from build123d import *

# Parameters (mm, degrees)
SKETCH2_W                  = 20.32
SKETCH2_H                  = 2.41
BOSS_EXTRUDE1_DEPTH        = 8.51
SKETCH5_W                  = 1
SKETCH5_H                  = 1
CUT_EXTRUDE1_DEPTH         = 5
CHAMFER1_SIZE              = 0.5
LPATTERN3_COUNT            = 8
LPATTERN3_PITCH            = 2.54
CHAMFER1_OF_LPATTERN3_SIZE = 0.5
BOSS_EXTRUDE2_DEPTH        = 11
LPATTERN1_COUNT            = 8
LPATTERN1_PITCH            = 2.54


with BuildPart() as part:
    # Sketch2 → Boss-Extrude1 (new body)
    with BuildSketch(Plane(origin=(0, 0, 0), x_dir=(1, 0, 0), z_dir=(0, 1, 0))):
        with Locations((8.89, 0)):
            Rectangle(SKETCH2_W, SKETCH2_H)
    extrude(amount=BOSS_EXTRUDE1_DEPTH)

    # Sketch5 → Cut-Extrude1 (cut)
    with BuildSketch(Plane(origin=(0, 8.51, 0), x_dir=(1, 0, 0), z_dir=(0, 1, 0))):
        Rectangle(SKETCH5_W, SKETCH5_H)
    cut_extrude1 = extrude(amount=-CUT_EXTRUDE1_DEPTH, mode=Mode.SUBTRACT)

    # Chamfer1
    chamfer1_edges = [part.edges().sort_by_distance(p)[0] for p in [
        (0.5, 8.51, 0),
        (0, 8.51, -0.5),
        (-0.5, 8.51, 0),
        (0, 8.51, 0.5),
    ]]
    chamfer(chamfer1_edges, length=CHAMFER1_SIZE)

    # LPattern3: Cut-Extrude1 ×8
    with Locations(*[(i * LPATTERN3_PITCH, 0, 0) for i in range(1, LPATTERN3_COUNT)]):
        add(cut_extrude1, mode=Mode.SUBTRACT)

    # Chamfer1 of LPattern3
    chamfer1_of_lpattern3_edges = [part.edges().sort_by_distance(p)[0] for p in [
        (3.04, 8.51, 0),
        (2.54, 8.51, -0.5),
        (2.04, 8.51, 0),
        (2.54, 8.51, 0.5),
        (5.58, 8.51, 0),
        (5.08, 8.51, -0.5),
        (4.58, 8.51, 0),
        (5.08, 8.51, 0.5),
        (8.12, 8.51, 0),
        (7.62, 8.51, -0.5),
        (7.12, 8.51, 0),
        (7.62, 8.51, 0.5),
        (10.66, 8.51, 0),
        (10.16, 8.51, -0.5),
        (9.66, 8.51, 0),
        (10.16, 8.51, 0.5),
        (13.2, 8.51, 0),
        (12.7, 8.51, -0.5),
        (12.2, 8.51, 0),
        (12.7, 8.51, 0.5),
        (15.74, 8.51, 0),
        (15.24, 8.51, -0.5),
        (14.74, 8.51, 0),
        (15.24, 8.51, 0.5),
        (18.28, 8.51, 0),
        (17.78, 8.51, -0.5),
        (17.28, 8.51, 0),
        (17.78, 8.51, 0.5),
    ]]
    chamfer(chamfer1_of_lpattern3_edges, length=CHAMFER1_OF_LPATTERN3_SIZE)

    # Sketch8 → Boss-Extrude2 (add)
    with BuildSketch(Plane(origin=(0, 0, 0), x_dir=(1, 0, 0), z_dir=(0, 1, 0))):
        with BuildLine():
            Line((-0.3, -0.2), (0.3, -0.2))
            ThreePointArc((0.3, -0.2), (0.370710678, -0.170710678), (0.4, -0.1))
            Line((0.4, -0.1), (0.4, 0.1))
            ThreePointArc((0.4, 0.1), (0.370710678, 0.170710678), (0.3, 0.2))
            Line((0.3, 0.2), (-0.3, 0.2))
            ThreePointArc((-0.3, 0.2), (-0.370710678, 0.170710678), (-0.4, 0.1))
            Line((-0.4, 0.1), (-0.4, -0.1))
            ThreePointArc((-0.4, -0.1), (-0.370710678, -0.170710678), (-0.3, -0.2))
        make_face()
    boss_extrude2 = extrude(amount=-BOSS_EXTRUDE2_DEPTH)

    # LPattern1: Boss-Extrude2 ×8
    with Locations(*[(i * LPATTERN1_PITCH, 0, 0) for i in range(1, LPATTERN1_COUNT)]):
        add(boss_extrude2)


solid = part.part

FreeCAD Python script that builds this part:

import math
import FreeCAD as App
import Part
import Sketcher


def edges_at(feature, points):
    """Names of the edges that pass closest to the given points."""
    edges = feature.Shape.Edges
    near = lambda p: min(range(len(edges)), key=lambda i: edges[i].distToShape(Part.Vertex(*p))[0])
    return sorted({f"Edge{near(p) + 1}" for p in points})


def add_polygon(sketch, points):
    """Adds a closed chain of lines whose ends are joined by coincident constraints."""
    first, n = sketch.GeometryCount, len(points)
    for a, b in zip(points, points[1:] + points[:1]):
        sketch.addGeometry(Part.LineSegment(App.Vector(*a, 0), App.Vector(*b, 0)), False)
    for i in range(n):
        sketch.addConstraint(Sketcher.Constraint("Coincident", first + i, 2, first + (i + 1) % n, 1))

doc = App.newDocument("Part")
params = doc.addObject("Spreadsheet::Sheet", "Params")
for row, (alias, value) in enumerate([
    ("sketch1_width", "20.32 mm"),
    ("sketch1_height", "2.41 mm"),
    ("pad1_length", "8.51 mm"),
    ("sketch2_width", "1 mm"),
    ("pocket1_length", "5 mm"),
    ("chamfer_size", "0.5 mm"),
    ("linearpattern_pitch", "2.54 mm"),
    ("chamfer2_size", "0.5 mm"),
    ("sketch3_radius", "0.1 mm"),
    ("sketch3_width", "0.6 mm"),
    ("sketch3_height", "0.2 mm"),
    ("pad2_length", "11 mm"),
    ("linearpattern2_pitch", "2.54 mm"),
], start=1):
    params.set(f"A{row}", alias)
    params.set(f"B{row}", "=" + value)
    params.setAlias(f"B{row}", alias)

body = doc.addObject("PartDesign::Body", "Body")

# Sketch on XZ plane
sketch1 = body.newObject("Sketcher::SketchObject", "Sketch")
sketch1.AttachmentSupport = (doc.getObject("XZ_Plane"), [""])
sketch1.MapMode = "FlatFace"
add_polygon(sketch1, [(-1.3, -1.2), (-1.3, 1.2), (19.1, 1.2), (19.1, -1.2)])  # lines 0-3
sketch1.addConstraint([
    Sketcher.Constraint("Vertical", 0),
    Sketcher.Constraint("Horizontal", 1),
    Sketcher.Constraint("Vertical", 2),
    Sketcher.Constraint("Horizontal", 3),
    Sketcher.Constraint("DistanceX", 1, 1, 1, 2, 20.32),
    Sketcher.Constraint("DistanceY", 0, 1, 0, 2, 2.41),
    Sketcher.Constraint("DistanceX", 0, 2, -1, 1, 1.27),
    Sketcher.Constraint("DistanceY", -1, 1, 0, 2, 1.205),
])
sketch1.setExpression("Constraints[8]", "Params.sketch1_width")
sketch1.setExpression("Constraints[9]", "Params.sketch1_height")
pad1 = body.newObject("PartDesign::Pad", "Pad")
pad1.Profile = sketch1
pad1.setExpression("Length", "Params.pad1_length")
pad1.Reversed = True

# Sketch on XZ plane
sketch2 = body.newObject("Sketcher::SketchObject", "Sketch001")
sketch2.AttachmentSupport = (doc.getObject("XZ_Plane"), [""])
sketch2.MapMode = "FlatFace"
sketch2.AttachmentOffset = App.Placement(App.Vector(0, 0, -8.51), App.Rotation())
add_polygon(sketch2, [(-0.5, -0.5), (-0.5, 0.5), (0.5, 0.5), (0.5, -0.5)])  # lines 0-3
sketch2.addConstraint([
    Sketcher.Constraint("Vertical", 0),
    Sketcher.Constraint("Horizontal", 1),
    Sketcher.Constraint("Vertical", 2),
    Sketcher.Constraint("Horizontal", 3),
    Sketcher.Constraint("Symmetric", 0, 2, 2, 2, -1, 1),
    Sketcher.Constraint("Equal", 3, 0),
    Sketcher.Constraint("DistanceX", 1, 1, 1, 2, 1.0),
])
sketch2.setExpression("Constraints[10]", "Params.sketch2_width")
pocket1 = body.newObject("PartDesign::Pocket", "Pocket")
pocket1.Profile = sketch2
pocket1.setExpression("Length", "Params.pocket1_length")
pocket1.Reversed = True
doc.recompute()

chamfer = body.newObject("PartDesign::Chamfer", "Chamfer")
chamfer.Base = (pocket1, edges_at(pocket1, [
    (0.5, 8.51, 0),
    (0, 8.51, -0.5),
    (-0.5, 8.51, 0),
    (0, 8.51, 0.5),
]))
chamfer.setExpression("Size", "Params.chamfer_size")
doc.recompute()

linearpattern = body.newObject("PartDesign::LinearPattern", "LinearPattern")
linearpattern.Originals = [pocket1]
linearpattern.Direction = (doc.getObject("X_Axis"), [""])
linearpattern.Mode = "offset"
linearpattern.setExpression("Offset", "Params.linearpattern_pitch")
linearpattern.Occurrences = 8
body.Tip = linearpattern
doc.recompute()

chamfer2 = body.newObject("PartDesign::Chamfer", "Chamfer001")
chamfer2.Base = (linearpattern, edges_at(linearpattern, [
    (3.04, 8.51, 0),
    (2.54, 8.51, -0.5),
    (2.04, 8.51, 0),
    (2.54, 8.51, 0.5),
    (5.58, 8.51, 0),
    (5.08, 8.51, -0.5),
    (4.58, 8.51, 0),
    (5.08, 8.51, 0.5),
    (8.12, 8.51, 0),
    (7.62, 8.51, -0.5),
    (7.12, 8.51, 0),
    (7.62, 8.51, 0.5),
    (10.66, 8.51, 0),
    (10.16, 8.51, -0.5),
    (9.66, 8.51, 0),
    (10.16, 8.51, 0.5),
    (13.2, 8.51, 0),
    (12.7, 8.51, -0.5),
    (12.2, 8.51, 0),
    (12.7, 8.51, 0.5),
    (15.74, 8.51, 0),
    (15.24, 8.51, -0.5),
    (14.74, 8.51, 0),
    (15.24, 8.51, 0.5),
    (18.28, 8.51, 0),
    (17.78, 8.51, -0.5),
    (17.28, 8.51, 0),
    (17.78, 8.51, 0.5),
]))
chamfer2.setExpression("Size", "Params.chamfer2_size")

# Sketch on XZ plane
sketch3 = body.newObject("Sketcher::SketchObject", "Sketch002")
sketch3.AttachmentSupport = (doc.getObject("XZ_Plane"), [""])
sketch3.MapMode = "FlatFace"
sketch3.addGeometry([
    Part.LineSegment(App.Vector(-0.3, 0.2, 0), App.Vector(0.3, 0.2, 0)),  # 0
    Part.ArcOfCircle(Part.Circle(App.Vector(0.3, 0.1, 0), App.Vector(0, 0, 1), 0.1), math.radians(0), math.radians(90)),  # 1
    Part.LineSegment(App.Vector(0.4, 0.1, 0), App.Vector(0.4, -0.1, 0)),  # 2
    Part.ArcOfCircle(Part.Circle(App.Vector(0.3, -0.1, 0), App.Vector(0, 0, 1), 0.1), math.radians(-90), math.radians(0)),  # 3
    Part.LineSegment(App.Vector(0.3, -0.2, 0), App.Vector(-0.3, -0.2, 0)),  # 4
    Part.ArcOfCircle(Part.Circle(App.Vector(-0.3, -0.1, 0), App.Vector(0, 0, 1), 0.1), math.radians(180), math.radians(270)),  # 5
    Part.LineSegment(App.Vector(-0.4, -0.1, 0), App.Vector(-0.4, 0.1, 0)),  # 6
    Part.ArcOfCircle(Part.Circle(App.Vector(-0.3, 0.1, 0), App.Vector(0, 0, 1), 0.1), math.radians(90), math.radians(180)),  # 7
], False)
sketch3.addConstraint([
    Sketcher.Constraint("Tangent", 0, 2, 1, 2),
    Sketcher.Constraint("Tangent", 1, 1, 2, 1),
    Sketcher.Constraint("Tangent", 2, 2, 3, 2),
    Sketcher.Constraint("Tangent", 3, 1, 4, 1),
    Sketcher.Constraint("Tangent", 4, 2, 5, 2),
    Sketcher.Constraint("Tangent", 5, 1, 6, 1),
    Sketcher.Constraint("Tangent", 6, 2, 7, 2),
    Sketcher.Constraint("Tangent", 7, 1, 0, 1),
    Sketcher.Constraint("Horizontal", 0),
    Sketcher.Constraint("Vertical", 2),
    Sketcher.Constraint("Horizontal", 4),
    Sketcher.Constraint("Vertical", 6),
    Sketcher.Constraint("Equal", 1, 3),
    Sketcher.Constraint("Equal", 3, 5),
    Sketcher.Constraint("Equal", 5, 7),
    Sketcher.Constraint("Symmetric", 1, 3, 5, 3, -1, 1),
    Sketcher.Constraint("Radius", 1, 0.1),
    Sketcher.Constraint("DistanceX", 0, 1, 0, 2, 0.6),
    Sketcher.Constraint("DistanceY", 2, 2, 2, 1, 0.2),
])
sketch3.setExpression("Constraints[16]", "Params.sketch3_radius")
sketch3.setExpression("Constraints[17]", "Params.sketch3_width")
sketch3.setExpression("Constraints[18]", "Params.sketch3_height")
pad2 = body.newObject("PartDesign::Pad", "Pad001")
pad2.Profile = sketch3
pad2.setExpression("Length", "Params.pad2_length")
doc.recompute()

linearpattern2 = body.newObject("PartDesign::LinearPattern", "LinearPattern001")
linearpattern2.Originals = [pad2]
linearpattern2.Direction = (doc.getObject("X_Axis"), [""])
linearpattern2.Mode = "offset"
linearpattern2.setExpression("Offset", "Params.linearpattern2_pitch")
linearpattern2.Occurrences = 8
body.Tip = linearpattern2

doc.recompute()
